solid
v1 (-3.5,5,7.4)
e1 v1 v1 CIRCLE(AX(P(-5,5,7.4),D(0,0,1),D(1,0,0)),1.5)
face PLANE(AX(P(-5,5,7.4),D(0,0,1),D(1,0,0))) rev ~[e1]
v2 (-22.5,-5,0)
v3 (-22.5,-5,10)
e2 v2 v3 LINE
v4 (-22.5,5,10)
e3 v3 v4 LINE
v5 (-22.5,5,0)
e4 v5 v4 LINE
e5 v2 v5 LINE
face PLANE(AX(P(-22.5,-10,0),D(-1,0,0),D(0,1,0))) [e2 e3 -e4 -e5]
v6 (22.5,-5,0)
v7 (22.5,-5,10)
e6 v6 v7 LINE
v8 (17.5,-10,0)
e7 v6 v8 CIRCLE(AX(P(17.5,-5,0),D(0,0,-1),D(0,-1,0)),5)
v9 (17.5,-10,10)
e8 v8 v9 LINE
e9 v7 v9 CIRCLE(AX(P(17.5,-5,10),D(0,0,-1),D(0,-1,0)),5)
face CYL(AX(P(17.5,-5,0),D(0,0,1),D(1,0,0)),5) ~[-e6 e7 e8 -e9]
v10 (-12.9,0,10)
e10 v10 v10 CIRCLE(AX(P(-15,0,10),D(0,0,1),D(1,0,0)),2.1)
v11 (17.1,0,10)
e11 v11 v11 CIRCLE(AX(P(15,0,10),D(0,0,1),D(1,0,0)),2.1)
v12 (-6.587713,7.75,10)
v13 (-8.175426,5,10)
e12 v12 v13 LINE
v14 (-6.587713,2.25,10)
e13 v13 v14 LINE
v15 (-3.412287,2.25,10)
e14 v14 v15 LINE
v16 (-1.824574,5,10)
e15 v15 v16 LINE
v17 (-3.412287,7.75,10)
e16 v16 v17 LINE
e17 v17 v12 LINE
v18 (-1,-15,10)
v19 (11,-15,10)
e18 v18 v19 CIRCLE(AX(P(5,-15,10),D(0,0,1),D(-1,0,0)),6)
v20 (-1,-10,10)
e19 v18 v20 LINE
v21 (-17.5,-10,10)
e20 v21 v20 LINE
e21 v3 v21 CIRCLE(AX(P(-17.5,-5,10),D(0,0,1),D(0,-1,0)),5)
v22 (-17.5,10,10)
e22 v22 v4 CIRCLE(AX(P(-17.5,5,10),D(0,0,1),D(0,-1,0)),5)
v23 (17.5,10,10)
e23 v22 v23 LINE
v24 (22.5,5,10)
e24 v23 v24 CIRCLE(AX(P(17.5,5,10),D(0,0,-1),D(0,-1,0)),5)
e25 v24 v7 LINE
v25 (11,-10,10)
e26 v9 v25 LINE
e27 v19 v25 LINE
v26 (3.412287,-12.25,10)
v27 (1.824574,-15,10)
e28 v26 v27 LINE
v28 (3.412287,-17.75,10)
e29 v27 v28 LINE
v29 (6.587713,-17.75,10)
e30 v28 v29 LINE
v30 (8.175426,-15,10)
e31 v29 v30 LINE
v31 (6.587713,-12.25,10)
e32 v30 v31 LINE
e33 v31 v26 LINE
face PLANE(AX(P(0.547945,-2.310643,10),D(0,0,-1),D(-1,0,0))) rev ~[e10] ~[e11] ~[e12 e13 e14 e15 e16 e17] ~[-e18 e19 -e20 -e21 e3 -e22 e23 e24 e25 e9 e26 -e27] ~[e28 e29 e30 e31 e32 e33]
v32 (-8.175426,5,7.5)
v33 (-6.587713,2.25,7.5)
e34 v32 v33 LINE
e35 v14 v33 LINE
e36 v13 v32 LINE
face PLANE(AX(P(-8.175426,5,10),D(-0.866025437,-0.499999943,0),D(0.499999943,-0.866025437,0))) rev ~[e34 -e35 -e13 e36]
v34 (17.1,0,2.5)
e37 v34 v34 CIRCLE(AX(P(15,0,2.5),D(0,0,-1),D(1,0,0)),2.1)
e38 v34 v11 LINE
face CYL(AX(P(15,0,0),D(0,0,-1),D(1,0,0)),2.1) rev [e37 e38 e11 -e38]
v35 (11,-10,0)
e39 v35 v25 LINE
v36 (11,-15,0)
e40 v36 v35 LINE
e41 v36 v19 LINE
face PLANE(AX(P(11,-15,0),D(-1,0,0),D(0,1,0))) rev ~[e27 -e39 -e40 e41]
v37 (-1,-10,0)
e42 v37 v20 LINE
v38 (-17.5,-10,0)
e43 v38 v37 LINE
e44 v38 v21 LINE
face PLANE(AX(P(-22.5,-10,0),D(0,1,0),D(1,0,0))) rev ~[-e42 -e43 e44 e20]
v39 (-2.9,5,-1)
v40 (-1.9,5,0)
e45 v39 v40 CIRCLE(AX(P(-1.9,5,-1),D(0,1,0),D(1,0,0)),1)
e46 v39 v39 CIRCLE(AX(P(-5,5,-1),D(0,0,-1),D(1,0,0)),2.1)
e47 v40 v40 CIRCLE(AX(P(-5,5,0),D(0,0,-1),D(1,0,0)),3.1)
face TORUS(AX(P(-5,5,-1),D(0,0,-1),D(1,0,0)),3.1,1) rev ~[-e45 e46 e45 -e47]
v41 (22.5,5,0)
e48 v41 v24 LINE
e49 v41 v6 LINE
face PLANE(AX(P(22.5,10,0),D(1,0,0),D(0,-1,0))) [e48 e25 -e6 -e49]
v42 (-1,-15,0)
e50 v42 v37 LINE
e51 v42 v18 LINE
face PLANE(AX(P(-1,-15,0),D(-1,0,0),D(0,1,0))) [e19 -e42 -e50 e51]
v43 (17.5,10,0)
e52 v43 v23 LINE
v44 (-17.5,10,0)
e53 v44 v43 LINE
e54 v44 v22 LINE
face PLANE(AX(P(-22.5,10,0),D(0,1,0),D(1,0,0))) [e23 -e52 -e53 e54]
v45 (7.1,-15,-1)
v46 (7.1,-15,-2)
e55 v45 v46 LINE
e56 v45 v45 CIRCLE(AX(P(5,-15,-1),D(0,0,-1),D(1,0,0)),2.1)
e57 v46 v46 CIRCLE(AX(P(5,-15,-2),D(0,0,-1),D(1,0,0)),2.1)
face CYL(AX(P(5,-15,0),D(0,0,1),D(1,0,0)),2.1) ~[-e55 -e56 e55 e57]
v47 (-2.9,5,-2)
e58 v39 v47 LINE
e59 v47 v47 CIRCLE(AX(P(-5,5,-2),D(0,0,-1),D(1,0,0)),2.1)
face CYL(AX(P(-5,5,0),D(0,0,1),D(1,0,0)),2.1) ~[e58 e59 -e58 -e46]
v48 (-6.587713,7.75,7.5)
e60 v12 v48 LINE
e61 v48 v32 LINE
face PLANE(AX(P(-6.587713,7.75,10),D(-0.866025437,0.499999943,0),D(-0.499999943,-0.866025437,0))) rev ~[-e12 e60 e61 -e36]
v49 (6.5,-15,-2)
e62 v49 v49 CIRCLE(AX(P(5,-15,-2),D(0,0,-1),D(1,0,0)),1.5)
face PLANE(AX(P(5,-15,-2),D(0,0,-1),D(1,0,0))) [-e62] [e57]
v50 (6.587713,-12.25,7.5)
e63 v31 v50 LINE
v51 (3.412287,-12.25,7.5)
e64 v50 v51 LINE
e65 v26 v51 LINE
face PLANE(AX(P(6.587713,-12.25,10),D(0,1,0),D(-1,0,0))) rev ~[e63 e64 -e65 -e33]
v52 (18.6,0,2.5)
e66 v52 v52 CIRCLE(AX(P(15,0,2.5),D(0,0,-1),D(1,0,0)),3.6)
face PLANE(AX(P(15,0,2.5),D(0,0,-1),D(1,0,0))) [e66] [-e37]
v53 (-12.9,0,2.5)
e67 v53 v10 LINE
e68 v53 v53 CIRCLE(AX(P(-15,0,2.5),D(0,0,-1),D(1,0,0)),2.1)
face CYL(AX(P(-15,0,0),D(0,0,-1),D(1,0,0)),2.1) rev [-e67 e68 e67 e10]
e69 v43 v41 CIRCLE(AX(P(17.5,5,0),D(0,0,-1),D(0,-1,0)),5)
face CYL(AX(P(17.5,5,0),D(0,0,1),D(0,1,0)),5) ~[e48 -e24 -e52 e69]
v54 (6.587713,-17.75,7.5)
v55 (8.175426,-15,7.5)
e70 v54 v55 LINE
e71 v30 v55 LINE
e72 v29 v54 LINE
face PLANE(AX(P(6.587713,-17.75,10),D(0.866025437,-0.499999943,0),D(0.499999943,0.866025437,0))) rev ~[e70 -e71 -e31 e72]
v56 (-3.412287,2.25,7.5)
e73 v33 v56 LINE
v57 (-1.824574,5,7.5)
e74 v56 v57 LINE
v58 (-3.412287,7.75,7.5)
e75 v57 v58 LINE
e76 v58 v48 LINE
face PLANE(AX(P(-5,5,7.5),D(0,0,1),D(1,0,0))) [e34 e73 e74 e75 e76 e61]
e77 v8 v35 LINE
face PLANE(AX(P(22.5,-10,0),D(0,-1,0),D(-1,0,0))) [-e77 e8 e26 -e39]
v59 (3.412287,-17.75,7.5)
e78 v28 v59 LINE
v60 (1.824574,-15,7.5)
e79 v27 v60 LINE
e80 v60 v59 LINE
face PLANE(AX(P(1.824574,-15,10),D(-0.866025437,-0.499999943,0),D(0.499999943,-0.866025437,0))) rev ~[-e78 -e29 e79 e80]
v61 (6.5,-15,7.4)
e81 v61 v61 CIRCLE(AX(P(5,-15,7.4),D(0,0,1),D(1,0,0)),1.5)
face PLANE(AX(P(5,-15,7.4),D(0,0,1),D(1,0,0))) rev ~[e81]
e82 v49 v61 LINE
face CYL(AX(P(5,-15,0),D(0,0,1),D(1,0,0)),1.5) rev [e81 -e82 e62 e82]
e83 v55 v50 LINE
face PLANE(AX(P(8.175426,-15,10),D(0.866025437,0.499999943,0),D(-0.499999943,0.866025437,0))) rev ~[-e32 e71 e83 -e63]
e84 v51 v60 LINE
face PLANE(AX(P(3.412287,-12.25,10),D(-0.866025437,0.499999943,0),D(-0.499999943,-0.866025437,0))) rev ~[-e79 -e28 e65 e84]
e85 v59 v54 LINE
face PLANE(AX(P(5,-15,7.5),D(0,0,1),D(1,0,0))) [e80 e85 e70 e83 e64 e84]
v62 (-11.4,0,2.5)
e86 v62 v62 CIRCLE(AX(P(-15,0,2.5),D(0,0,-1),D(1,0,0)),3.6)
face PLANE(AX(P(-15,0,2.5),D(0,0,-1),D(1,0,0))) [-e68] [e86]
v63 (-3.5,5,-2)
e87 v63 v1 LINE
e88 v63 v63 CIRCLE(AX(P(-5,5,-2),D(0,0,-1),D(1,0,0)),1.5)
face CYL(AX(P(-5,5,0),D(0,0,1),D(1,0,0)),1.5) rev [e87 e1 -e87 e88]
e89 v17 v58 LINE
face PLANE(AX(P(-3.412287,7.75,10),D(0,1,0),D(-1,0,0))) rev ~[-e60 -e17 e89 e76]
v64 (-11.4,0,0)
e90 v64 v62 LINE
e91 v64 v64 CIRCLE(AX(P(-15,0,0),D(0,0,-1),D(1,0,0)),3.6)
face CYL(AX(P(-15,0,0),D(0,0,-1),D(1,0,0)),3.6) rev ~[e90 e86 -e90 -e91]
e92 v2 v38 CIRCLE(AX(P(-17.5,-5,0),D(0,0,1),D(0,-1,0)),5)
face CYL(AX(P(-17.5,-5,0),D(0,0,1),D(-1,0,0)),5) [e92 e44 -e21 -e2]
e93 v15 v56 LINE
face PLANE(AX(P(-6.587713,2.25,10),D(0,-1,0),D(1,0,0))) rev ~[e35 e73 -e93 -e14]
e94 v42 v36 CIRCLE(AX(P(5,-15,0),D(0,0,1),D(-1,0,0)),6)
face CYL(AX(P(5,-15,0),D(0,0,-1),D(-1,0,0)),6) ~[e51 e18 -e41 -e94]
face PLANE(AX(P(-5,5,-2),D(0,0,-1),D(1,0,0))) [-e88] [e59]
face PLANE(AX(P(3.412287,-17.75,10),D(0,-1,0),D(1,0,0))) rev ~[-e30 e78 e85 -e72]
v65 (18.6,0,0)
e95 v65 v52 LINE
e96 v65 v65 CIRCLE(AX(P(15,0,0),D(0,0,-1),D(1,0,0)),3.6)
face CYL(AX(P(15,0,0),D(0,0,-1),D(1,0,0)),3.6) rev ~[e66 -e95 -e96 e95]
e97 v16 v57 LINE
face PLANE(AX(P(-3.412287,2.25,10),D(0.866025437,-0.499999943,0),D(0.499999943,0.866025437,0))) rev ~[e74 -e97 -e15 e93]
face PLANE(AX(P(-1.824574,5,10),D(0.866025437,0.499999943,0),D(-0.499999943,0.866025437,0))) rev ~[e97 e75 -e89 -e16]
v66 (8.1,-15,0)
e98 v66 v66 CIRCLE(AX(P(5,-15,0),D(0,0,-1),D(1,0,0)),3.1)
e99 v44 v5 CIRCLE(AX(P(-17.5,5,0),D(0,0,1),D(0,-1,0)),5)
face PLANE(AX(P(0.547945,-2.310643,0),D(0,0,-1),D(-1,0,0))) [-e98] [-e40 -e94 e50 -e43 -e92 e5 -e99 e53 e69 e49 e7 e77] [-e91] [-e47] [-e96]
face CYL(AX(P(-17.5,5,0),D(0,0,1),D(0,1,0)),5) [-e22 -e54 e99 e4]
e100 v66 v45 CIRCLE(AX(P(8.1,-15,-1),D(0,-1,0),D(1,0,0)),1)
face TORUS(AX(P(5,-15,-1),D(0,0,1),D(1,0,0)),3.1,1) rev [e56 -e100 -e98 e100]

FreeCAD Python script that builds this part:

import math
import FreeCAD as App
import Part
import Sketcher
Q = App.Units.Quantity


def edges_at(feature, points):
    """Names of the edges that pass closest to the given points."""
    edges = feature.Shape.Edges
    near = lambda p: min(range(len(edges)), key=lambda i: edges[i].distToShape(Part.Vertex(*p))[0])
    return sorted({f"Edge{near(p) + 1}" for p in points})


def add_polygon(sketch, points):
    """Adds a closed chain of lines whose ends are joined by coincident constraints."""
    first, n = sketch.GeometryCount, len(points)
    for a, b in zip(points, points[1:] + points[:1]):
        sketch.addGeometry(Part.LineSegment(App.Vector(*a, 0), App.Vector(*b, 0)), False)
    for i in range(n):
        sketch.addConstraint(Sketcher.Constraint("Coincident", first + i, 2, first + (i + 1) % n, 1))

doc = App.newDocument("Part")
body = doc.addObject("PartDesign::Body", "Body")

# Sketch on XY plane
sketch1 = body.newObject("Sketcher::SketchObject", "Sketch")
sketch1.AttachmentSupport = (doc.getObject("XY_Plane"), [""])
sketch1.MapMode = "FlatFace"
sketch1.addGeometry([
    Part.LineSegment(App.Vector(22.5, 10, 0), App.Vector(-22.5, 10, 0)),  # 0
    Part.LineSegment(App.Vector(-22.5, 10, 0), App.Vector(-22.5, -10, 0)),  # 1
    Part.LineSegment(App.Vector(-22.5, -10, 0), App.Vector(-1, -10, 0)),  # 2
    Part.LineSegment(App.Vector(-1, -10, 0), App.Vector(-1, -15, 0)),  # 3
    Part.ArcOfCircle(Part.Circle(App.Vector(5, -15, 0), App.Vector(0, 0, 1), 6), math.radians(180), math.radians(360)),  # 4
    Part.LineSegment(App.Vector(11, -15, 0), App.Vector(11, -10, 0)),  # 5
    Part.LineSegment(App.Vector(11, -10, 0), App.Vector(22.5, -10, 0)),  # 6
    Part.LineSegment(App.Vector(22.5, -10, 0), App.Vector(22.5, 10, 0)),  # 7
    Part.Circle(App.Vector(5, -15, 0), App.Vector(0, 0, 1), 1.5),  # 8
    Part.Circle(App.Vector(15, 0, 0), App.Vector(0, 0, 1), 2.1),  # 9
    Part.Circle(App.Vector(-15, 0, 0), App.Vector(0, 0, 1), 2.1),  # 10
    Part.Circle(App.Vector(-5, 5, 0), App.Vector(0, 0, 1), 1.5),  # 11
], False)
sketch1.addConstraint([
    Sketcher.Constraint("Coincident", 0, 2, 1, 1),
    Sketcher.Constraint("Coincident", 1, 2, 2, 1),
    Sketcher.Constraint("Coincident", 2, 2, 3, 1),
    Sketcher.Constraint("Tangent", 3, 2, 4, 1),
    Sketcher.Constraint("Tangent", 4, 2, 5, 1),
    Sketcher.Constraint("Coincident", 5, 2, 6, 1),
    Sketcher.Constraint("Coincident", 6, 2, 7, 1),
    Sketcher.Constraint("Coincident", 7, 2, 0, 1),
    Sketcher.Constraint("Horizontal", 0),
    Sketcher.Constraint("Vertical", 1),
    Sketcher.Constraint("Horizontal", 2),
    Sketcher.Constraint("Vertical", 3),
    Sketcher.Constraint("Vertical", 5),
    Sketcher.Constraint("Horizontal", 6),
    Sketcher.Constraint("Vertical", 7),
    Sketcher.Constraint("Coincident", 8, 3, 4, 3),
    Sketcher.Constraint("Equal", 9, 10),
    Sketcher.Constraint("Equal", 8, 11),
    Sketcher.Constraint("Symmetric", 9, 3, 10, 3, -1, 1),
    Sketcher.Constraint("Symmetric", 0, 2, 6, 2, -1, 1),
    Sketcher.Constraint("PointOnObject", 9, 3, -1),
    Sketcher.Constraint("Horizontal", 2, 2, 5, 2),
    Sketcher.Constraint("Diameter", 8, 3.0),
    Sketcher.Constraint("Radius", 4, 6.0),
    Sketcher.Constraint("Diameter", 9, 4.2),
    Sketcher.Constraint("DistanceX", 0, 2, 0, 1, 45.0),
    Sketcher.Constraint("DistanceY", 1, 2, 1, 1, 20.0),
    Sketcher.Constraint("DistanceY", 3, 2, 3, 1, 5.0),
    Sketcher.Constraint("DistanceX", 2, 1, 2, 2, 21.5),
    Sketcher.Constraint("DistanceX", -1, 1, 9, 3, 15.0),
    Sketcher.Constraint("DistanceX", 11, 3, -1, 1, 5.0),
    Sketcher.Constraint("DistanceY", -1, 1, 11, 3, 5.0),
])
pad1 = body.newObject("PartDesign::Pad", "Pad")
pad1.Profile = sketch1
pad1.Length = 10

# Sketch on XY plane
sketch2 = body.newObject("Sketcher::SketchObject", "Sketch001")
sketch2.AttachmentSupport = (doc.getObject("XY_Plane"), [""])
sketch2.MapMode = "FlatFace"
sketch2.AttachmentOffset = App.Placement(App.Vector(0, 0, 10), App.Rotation())
add_polygon(sketch2, [(-3.4, 2.2), (-1.8, 5), (-3.4, 7.8), (-6.6, 7.8), (-8.2, 5), (-6.6, 2.2)])  # lines 0-5
add_polygon(sketch2, [(6.6, -17.8), (8.2, -15), (6.6, -12.2), (3.4, -12.2), (1.8, -15), (3.4, -17.8)])  # lines 6-11
sketch2.addConstraint([
    Sketcher.Constraint("Horizontal", 2),
    Sketcher.Constraint("Horizontal", 5),
    Sketcher.Constraint("Horizontal", 8),
    Sketcher.Constraint("Horizontal", 11),
    Sketcher.Constraint("Parallel", 0, 3),
    Sketcher.Constraint("Parallel", 1, 4),
    Sketcher.Constraint("Parallel", 3, 6),
    Sketcher.Constraint("Parallel", 4, 7),
    Sketcher.Constraint("Parallel", 6, 9),
    Sketcher.Constraint("Parallel", 7, 10),
    Sketcher.Constraint("Horizontal", 0, 2, 3, 2),
    Sketcher.Constraint("Horizontal", 6, 2, 9, 2),
    Sketcher.Constraint("Vertical", 2, 2, 4, 2),
    Sketcher.Constraint("Vertical", 1, 2, 5, 2),
    Sketcher.Constraint("Vertical", 8, 2, 10, 2),
    Sketcher.Constraint("Equal", 5, 8),
    Sketcher.Constraint("Equal", 4, 6),
    Sketcher.Constraint("Angle", 0, Q("60.000004 deg")),
    Sketcher.Constraint("DistanceY", -1, 1, 0, 2, 5.0),
    Sketcher.Constraint("DistanceY", 6, 2, -1, 1, 15.0),
    Sketcher.Constraint("DistanceX", 0, 2, 6, 2, 10.0),
    Sketcher.Constraint("DistanceY", 4, 2, 2, 2, 5.5),
    Sketcher.Constraint("DistanceX", 2, 2, 2, 1, 3.175426),
    Sketcher.Constraint("DistanceX", 0, 2, -1, 1, 1.824574),
])
pocket1 = body.newObject("PartDesign::Pocket", "Pocket")
pocket1.Profile = sketch2
pocket1.Length = 2.5

# Sketch on XY plane
sketch3 = body.newObject("Sketcher::SketchObject", "Sketch002")
sketch3.AttachmentSupport = (doc.getObject("XY_Plane"), [""])
sketch3.MapMode = "FlatFace"
sketch3.addGeometry([
    Part.Circle(App.Vector(-5, 5, 0), App.Vector(0, 0, 1), 2.1),
    Part.Circle(App.Vector(-5, 5, 0), App.Vector(0, 0, 1), 1.5),
    Part.Circle(App.Vector(5, -15, 0), App.Vector(0, 0, 1), 2.1),
    Part.Circle(App.Vector(5, -15, 0), App.Vector(0, 0, 1), 1.5),
], False)
sketch3.addConstraint([
    Sketcher.Constraint("Coincident", 1, 3, 0, 3),
    Sketcher.Constraint("Coincident", 3, 3, 2, 3),
    Sketcher.Constraint("Equal", 0, 2),
    Sketcher.Constraint("Equal", 1, 3),
    Sketcher.Constraint("Diameter", 1, 3.0),
    Sketcher.Constraint("Diameter", 0, 4.2),
    Sketcher.Constraint("DistanceX", 0, 3, -1, 1, 5.0),
    Sketcher.Constraint("DistanceY", -1, 1, 0, 3, 5.0),
    Sketcher.Constraint("DistanceX", -1, 1, 2, 3, 5.0),
    Sketcher.Constraint("DistanceY", 2, 3, -1, 1, 15.0),
])
pad2 = body.newObject("PartDesign::Pad", "Pad001")
pad2.Profile = sketch3
pad2.Length = 2
pad2.Reversed = True

# Sketch on XY plane
sketch4 = body.newObject("Sketcher::SketchObject", "Sketch003")
sketch4.AttachmentSupport = (doc.getObject("XY_Plane"), [""])
sketch4.MapMode = "FlatFace"
sketch4.addGeometry([
    Part.Circle(App.Vector(15, 0, 0), App.Vector(0, 0, 1), 3.6),
    Part.Circle(App.Vector(15, 0, 0), App.Vector(0, 0, 1), 2.1),
    Part.Circle(App.Vector(-15, 0, 0), App.Vector(0, 0, 1), 3.6),
    Part.Circle(App.Vector(-15, 0, 0), App.Vector(0, 0, 1), 2.1),
], False)
sketch4.addConstraint([
    Sketcher.Constraint("Coincident", 1, 3, 0, 3),
    Sketcher.Constraint("Coincident", 3, 3, 2, 3),
    Sketcher.Constraint("Equal", 0, 2),
    Sketcher.Constraint("Equal", 1, 3),
    Sketcher.Constraint("Symmetric", 0, 3, 2, 3, -1, 1),
    Sketcher.Constraint("PointOnObject", 0, 3, -1),
    Sketcher.Constraint("Diameter", 0, 7.2),
    Sketcher.Constraint("Diameter", 1, 4.2),
    Sketcher.Constraint("DistanceX", -1, 1, 0, 3, 15.0),
])
pocket2 = body.newObject("PartDesign::Pocket", "Pocket001")
pocket2.Profile = sketch4
pocket2.Length = 2.5
pocket2.Reversed = True
doc.recompute()

fillet = body.newObject("PartDesign::Fillet", "Fillet")
fillet.Base = (pocket2, edges_at(pocket2, [(2.9, -15, 0), (-7.1, 5, 0)]))
fillet.Radius = 1
doc.recompute()

fillet2 = body.newObject("PartDesign::Fillet", "Fillet001")
fillet2.Base = (fillet, edges_at(fillet, [
    (22.5, 10, 5),
    (22.5, -10, 5),
    (-22.5, 10, 5),
    (-22.5, -10, 5),
]))
fillet2.Radius = 5

# Sketch on XY plane
sketch5 = body.newObject("Sketcher::SketchObject", "Sketch004")
sketch5.AttachmentSupport = (doc.getObject("XY_Plane"), [""])
sketch5.MapMode = "FlatFace"
sketch5.AttachmentOffset = App.Placement(App.Vector(0, 0, 7.5), App.Rotation())
sketch5.addGeometry([
    Part.Circle(App.Vector(-5, 5, 0), App.Vector(0, 0, 1), 1.5),
    Part.Circle(App.Vector(5, -15, 0), App.Vector(0, 0, 1), 1.5),
], False)
sketch5.addConstraint([
    Sketcher.Constraint("Equal", 0, 1),
    Sketcher.Constraint("Diameter", 0, 3.0),
    Sketcher.Constraint("DistanceX", 0, 3, -1, 1, 5.0),
    Sketcher.Constraint("DistanceY", -1, 1, 0, 3, 5.0),
    Sketcher.Constraint("DistanceX", -1, 1, 1, 3, 5.0),
    Sketcher.Constraint("DistanceY", 1, 3, -1, 1, 15.0),
])
pad3 = body.newObject("PartDesign::Pad", "Pad002")
pad3.Profile = sketch5
pad3.Length = 0.1
pad3.Reversed = True

doc.recompute()
